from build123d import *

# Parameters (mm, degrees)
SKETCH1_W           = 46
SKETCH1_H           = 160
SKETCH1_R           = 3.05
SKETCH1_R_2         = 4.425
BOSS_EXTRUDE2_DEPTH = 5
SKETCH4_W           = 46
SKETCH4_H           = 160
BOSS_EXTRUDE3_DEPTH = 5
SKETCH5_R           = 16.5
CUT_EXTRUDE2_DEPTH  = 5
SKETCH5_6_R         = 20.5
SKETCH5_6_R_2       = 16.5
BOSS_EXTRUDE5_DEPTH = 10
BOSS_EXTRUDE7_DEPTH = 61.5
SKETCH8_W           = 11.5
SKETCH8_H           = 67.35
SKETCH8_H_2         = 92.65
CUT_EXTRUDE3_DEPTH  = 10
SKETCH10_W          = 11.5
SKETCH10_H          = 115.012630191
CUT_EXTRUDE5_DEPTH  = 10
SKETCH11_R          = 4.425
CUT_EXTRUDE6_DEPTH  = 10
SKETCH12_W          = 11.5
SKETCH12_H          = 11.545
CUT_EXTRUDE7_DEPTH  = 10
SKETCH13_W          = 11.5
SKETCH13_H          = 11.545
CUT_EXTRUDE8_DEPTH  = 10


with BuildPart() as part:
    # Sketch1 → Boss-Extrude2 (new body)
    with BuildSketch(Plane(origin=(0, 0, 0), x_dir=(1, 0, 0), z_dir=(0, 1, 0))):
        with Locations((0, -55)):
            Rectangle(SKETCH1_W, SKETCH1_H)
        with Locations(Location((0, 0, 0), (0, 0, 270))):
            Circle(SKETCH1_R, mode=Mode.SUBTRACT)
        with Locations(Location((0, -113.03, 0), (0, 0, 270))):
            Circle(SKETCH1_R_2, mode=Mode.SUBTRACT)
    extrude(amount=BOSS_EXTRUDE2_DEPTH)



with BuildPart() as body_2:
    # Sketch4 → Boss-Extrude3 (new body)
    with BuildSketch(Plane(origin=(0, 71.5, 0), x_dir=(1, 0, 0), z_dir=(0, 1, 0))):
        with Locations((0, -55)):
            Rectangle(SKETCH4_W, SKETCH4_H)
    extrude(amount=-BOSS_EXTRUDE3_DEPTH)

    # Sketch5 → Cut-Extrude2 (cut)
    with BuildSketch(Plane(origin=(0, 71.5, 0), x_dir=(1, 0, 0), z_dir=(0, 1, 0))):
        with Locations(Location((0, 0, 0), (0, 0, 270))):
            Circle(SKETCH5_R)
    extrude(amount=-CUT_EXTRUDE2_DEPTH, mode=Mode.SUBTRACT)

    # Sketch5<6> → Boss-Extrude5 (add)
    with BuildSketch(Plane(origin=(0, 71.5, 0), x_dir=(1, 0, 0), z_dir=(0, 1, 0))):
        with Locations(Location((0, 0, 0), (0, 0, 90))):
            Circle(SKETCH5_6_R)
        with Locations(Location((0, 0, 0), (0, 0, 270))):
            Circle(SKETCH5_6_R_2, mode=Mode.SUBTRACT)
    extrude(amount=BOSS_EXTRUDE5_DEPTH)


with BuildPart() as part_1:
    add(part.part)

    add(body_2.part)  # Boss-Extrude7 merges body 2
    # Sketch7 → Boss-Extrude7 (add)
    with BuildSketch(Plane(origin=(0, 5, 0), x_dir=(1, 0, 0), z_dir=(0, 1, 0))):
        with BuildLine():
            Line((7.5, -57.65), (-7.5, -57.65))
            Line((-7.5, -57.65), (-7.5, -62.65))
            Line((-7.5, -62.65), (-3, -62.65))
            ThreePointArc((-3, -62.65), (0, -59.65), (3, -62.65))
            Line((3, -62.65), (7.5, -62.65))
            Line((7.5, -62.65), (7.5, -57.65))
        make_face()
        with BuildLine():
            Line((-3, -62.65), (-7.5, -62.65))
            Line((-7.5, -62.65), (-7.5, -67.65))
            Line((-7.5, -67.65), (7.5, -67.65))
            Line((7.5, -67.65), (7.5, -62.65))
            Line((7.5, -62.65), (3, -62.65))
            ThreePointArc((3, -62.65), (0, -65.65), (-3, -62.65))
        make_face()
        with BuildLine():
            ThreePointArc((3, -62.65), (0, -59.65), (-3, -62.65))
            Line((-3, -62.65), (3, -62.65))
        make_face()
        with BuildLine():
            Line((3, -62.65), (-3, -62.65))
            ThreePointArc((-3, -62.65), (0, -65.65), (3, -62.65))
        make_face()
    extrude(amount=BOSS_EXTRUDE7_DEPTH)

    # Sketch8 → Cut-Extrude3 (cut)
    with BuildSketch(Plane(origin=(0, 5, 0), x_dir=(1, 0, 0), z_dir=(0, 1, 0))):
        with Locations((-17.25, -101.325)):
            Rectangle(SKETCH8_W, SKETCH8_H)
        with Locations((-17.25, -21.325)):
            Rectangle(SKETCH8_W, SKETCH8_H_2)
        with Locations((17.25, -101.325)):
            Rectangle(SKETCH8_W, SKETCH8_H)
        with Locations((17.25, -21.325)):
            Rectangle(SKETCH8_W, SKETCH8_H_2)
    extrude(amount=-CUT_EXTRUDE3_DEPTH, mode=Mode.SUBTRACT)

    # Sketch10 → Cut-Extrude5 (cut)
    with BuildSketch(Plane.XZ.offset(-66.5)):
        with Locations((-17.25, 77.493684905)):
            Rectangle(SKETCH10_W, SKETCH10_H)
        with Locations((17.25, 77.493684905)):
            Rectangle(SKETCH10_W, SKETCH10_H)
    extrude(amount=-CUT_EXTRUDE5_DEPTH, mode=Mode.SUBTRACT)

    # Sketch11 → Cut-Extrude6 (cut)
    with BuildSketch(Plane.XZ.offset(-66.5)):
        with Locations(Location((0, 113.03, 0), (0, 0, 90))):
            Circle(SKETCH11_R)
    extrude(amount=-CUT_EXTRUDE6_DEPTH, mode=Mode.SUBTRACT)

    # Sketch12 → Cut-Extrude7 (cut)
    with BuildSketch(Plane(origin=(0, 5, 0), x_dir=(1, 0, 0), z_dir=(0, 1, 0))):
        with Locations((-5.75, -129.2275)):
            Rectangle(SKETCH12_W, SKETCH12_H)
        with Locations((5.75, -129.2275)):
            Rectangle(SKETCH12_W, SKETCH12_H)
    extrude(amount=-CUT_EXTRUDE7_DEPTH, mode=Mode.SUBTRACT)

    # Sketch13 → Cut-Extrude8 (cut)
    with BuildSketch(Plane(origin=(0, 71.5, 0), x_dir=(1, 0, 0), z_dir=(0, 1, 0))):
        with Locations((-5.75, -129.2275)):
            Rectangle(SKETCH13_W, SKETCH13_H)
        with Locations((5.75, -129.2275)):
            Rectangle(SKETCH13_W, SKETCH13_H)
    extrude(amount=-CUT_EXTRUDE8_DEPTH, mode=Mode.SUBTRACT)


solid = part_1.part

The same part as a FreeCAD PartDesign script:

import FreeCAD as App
import Part
import Sketcher
from FreeCAD import Vector

doc = App.newDocument("Part")
body = doc.addObject("PartDesign::Body", "Body")

sketch1 = doc.addObject("Sketcher::SketchObject", "Sketch")
body.addObject(sketch1)
sketch1.AttachmentSupport = (doc.XZ_Plane, [""])
sketch1.MapMode = "FlatFace"
sketch1.addGeometry(Part.LineSegment(Vector(-23, -25, 0), Vector(-23, 135, 0)), False)
sketch1.addGeometry(Part.LineSegment(Vector(-23, 135, 0), Vector(23, 135, 0)), False)
sketch1.addGeometry(Part.LineSegment(Vector(23, 135, 0), Vector(23, -25, 0)), False)
sketch1.addGeometry(Part.LineSegment(Vector(23, -25, 0), Vector(-23, -25, 0)), False)
sketch1.addGeometry(Part.Circle(Vector(0, 113.03, 0), Vector(0, 0, 1), 4.425), False)
sketch1.addGeometry(Part.Circle(Vector(0, 0, 0), Vector(0, 0, 1), 3.05), False)
sketch1.addConstraint(Sketcher.Constraint("Coincident", 0, 2, 1, 1))
sketch1.addConstraint(Sketcher.Constraint("Coincident", 1, 2, 2, 1))
sketch1.addConstraint(Sketcher.Constraint("Coincident", 2, 2, 3, 1))
sketch1.addConstraint(Sketcher.Constraint("Coincident", 3, 2, 0, 1))
sketch1.addConstraint(Sketcher.Constraint("Vertical", 0))
sketch1.addConstraint(Sketcher.Constraint("Horizontal", 1))
sketch1.addConstraint(Sketcher.Constraint("Vertical", 2))
sketch1.addConstraint(Sketcher.Constraint("Horizontal", 3))
sketch1.addConstraint(Sketcher.Constraint("Coincident", 5, 3, -1, 1))
sketch1.addConstraint(Sketcher.Constraint("PointOnObject", 4, 3, -2))
sketch1.addConstraint(Sketcher.Constraint("Diameter", 5, 6.1))
sketch1.addConstraint(Sketcher.Constraint("Diameter", 4, 8.85))
sketch1.addConstraint(Sketcher.Constraint("DistanceX", 1, 1, 1, 2, 46.0))
sketch1.addConstraint(Sketcher.Constraint("DistanceY", 0, 1, 0, 2, 160.0))
sketch1.addConstraint(Sketcher.Constraint("DistanceX", 0, 2, -1, 1, 23.0))
sketch1.addConstraint(Sketcher.Constraint("DistanceY", -1, 1, 0, 2, 135.0))
sketch1.addConstraint(Sketcher.Constraint("DistanceY", -1, 1, 4, 3, 113.03))
pad1 = doc.addObject("PartDesign::Pad", "Pad")
body.addObject(pad1)
pad1.Profile = sketch1
pad1.Length = 5
pad1.Reversed = True
body2 = doc.addObject("PartDesign::Body", "Body001")

sketch2 = doc.addObject("Sketcher::SketchObject", "Sketch001")
body2.addObject(sketch2)
sketch2.AttachmentSupport = (doc.getObject("XZ_Plane001"), [""])
sketch2.MapMode = "FlatFace"
sketch2.AttachmentOffset = App.Placement(Vector(0, 0, -71.5), App.Rotation())
sketch2.addGeometry(Part.LineSegment(Vector(-23, -25, 0), Vector(-23, 135, 0)), False)
sketch2.addGeometry(Part.LineSegment(Vector(-23, 135, 0), Vector(23, 135, 0)), False)
sketch2.addGeometry(Part.LineSegment(Vector(23, 135, 0), Vector(23, -25, 0)), False)
sketch2.addGeometry(Part.LineSegment(Vector(23, -25, 0), Vector(-23, -25, 0)), False)
sketch2.addConstraint(Sketcher.Constraint("Coincident", 0, 2, 1, 1))
sketch2.addConstraint(Sketcher.Constraint("Coincident", 1, 2, 2, 1))
sketch2.addConstraint(Sketcher.Constraint("Coincident", 2, 2, 3, 1))
sketch2.addConstraint(Sketcher.Constraint("Coincident", 3, 2, 0, 1))
sketch2.addConstraint(Sketcher.Constraint("Vertical", 0))
sketch2.addConstraint(Sketcher.Constraint("Horizontal", 1))
sketch2.addConstraint(Sketcher.Constraint("Vertical", 2))
sketch2.addConstraint(Sketcher.Constraint("Horizontal", 3))
sketch2.addConstraint(Sketcher.Constraint("DistanceX", 1, 1, 1, 2, 46.0))
sketch2.addConstraint(Sketcher.Constraint("DistanceY", 0, 1, 0, 2, 160.0))
sketch2.addConstraint(Sketcher.Constraint("DistanceX", 0, 2, -1, 1, 23.0))
sketch2.addConstraint(Sketcher.Constraint("DistanceY", -1, 1, 0, 2, 135.0))
pad2 = doc.addObject("PartDesign::Pad", "Pad001")
body2.addObject(pad2)
pad2.Profile = sketch2
pad2.Length = 5

sketch3 = doc.addObject("Sketcher::SketchObject", "Sketch002")
body2.addObject(sketch3)
sketch3.AttachmentSupport = (doc.getObject("XZ_Plane001"), [""])
sketch3.MapMode = "FlatFace"
sketch3.AttachmentOffset = App.Placement(Vector(0, 0, -71.5), App.Rotation())
sketch3.addGeometry(Part.Circle(Vector(0, 0, 0), Vector(0, 0, 1), 16.5), False)
sketch3.addConstraint(Sketcher.Constraint("Coincident", 0, 3, -1, 1))
sketch3.addConstraint(Sketcher.Constraint("Diameter", 0, 33.0))
pocket1 = doc.addObject("PartDesign::Pocket", "Pocket")
body2.addObject(pocket1)
pocket1.Profile = sketch3
pocket1.Length = 5
pocket1.Reversed = True

sketch4 = doc.addObject("Sketcher::SketchObject", "Sketch003")
body2.addObject(sketch4)
sketch4.AttachmentSupport = (doc.getObject("XZ_Plane001"), [""])
sketch4.MapMode = "FlatFace"
sketch4.AttachmentOffset = App.Placement(Vector(0, 0, -71.5), App.Rotation())
sketch4.addGeometry(Part.Circle(Vector(0, 0, 0), Vector(0, 0, 1), 20.5), False)
sketch4.addGeometry(Part.Circle(Vector(0, 0, 0), Vector(0, 0, 1), 16.5), False)
sketch4.addConstraint(Sketcher.Constraint("Coincident", 0, 3, -1, 1))
sketch4.addConstraint(Sketcher.Constraint("Coincident", 1, 3, -1, 1))
sketch4.addConstraint(Sketcher.Constraint("Diameter", 0, 41.0))
sketch4.addConstraint(Sketcher.Constraint("Diameter", 1, 33.0))
pad3 = doc.addObject("PartDesign::Pad", "Pad002")
body2.addObject(pad3)
pad3.Profile = sketch4
pad3.Length = 10
pad3.Reversed = True
body.AllowCompound = True
doc.recompute()

boolean = doc.addObject("PartDesign::Boolean", "Boolean")
body.addObject(boolean)
boolean.Type = "Fuse"
boolean.addObjects([body2])

sketch5 = doc.addObject("Sketcher::SketchObject", "Sketch004")
body.addObject(sketch5)
sketch5.AttachmentSupport = (doc.XZ_Plane, [""])
sketch5.MapMode = "FlatFace"
sketch5.AttachmentOffset = App.Placement(Vector(0, 0, -5), App.Rotation())
sketch5.addGeometry(Part.LineSegment(Vector(7.5, 57.65, 0), Vector(-7.5, 57.65, 0)), False)
sketch5.addGeometry(Part.LineSegment(Vector(-7.5, 57.65, 0), Vector(-7.5, 67.65, 0)), False)
sketch5.addGeometry(Part.LineSegment(Vector(-7.5, 67.65, 0), Vector(7.5, 67.65, 0)), False)
sketch5.addGeometry(Part.LineSegment(Vector(7.5, 67.65, 0), Vector(7.5, 57.65, 0)), False)
sketch5.addConstraint(Sketcher.Constraint("Coincident", 0, 2, 1, 1))
sketch5.addConstraint(Sketcher.Constraint("Coincident", 1, 2, 2, 1))
sketch5.addConstraint(Sketcher.Constraint("Coincident", 2, 2, 3, 1))
sketch5.addConstraint(Sketcher.Constraint("Coincident", 3, 2, 0, 1))
sketch5.addConstraint(Sketcher.Constraint("Horizontal", 0))
sketch5.addConstraint(Sketcher.Constraint("Vertical", 1))
sketch5.addConstraint(Sketcher.Constraint("Horizontal", 2))
sketch5.addConstraint(Sketcher.Constraint("Vertical", 3))
sketch5.addConstraint(Sketcher.Constraint("DistanceX", 0, 2, 0, 1, 15.0))
sketch5.addConstraint(Sketcher.Constraint("DistanceY", 1, 1, 1, 2, 10.0))
sketch5.addConstraint(Sketcher.Constraint("DistanceX", 0, 2, -1, 1, 7.5))
sketch5.addConstraint(Sketcher.Constraint("DistanceY", -1, 1, 0, 2, 57.65))
pad4 = doc.addObject("PartDesign::Pad", "Pad003")
body.addObject(pad4)
pad4.Profile = sketch5
pad4.Length = 61.5
pad4.Reversed = True

sketch6 = doc.addObject("Sketcher::SketchObject", "Sketch005")
body.addObject(sketch6)
sketch6.AttachmentSupport = (doc.XZ_Plane, [""])
sketch6.MapMode = "FlatFace"
sketch6.AttachmentOffset = App.Placement(Vector(0, 0, -5), App.Rotation())
sketch6.addGeometry(Part.LineSegment(Vector(-23, 135, 0), Vector(-11.5, 135, 0)), False)
sketch6.addGeometry(Part.LineSegment(Vector(-11.5, 135, 0), Vector(-11.5, -25, 0)), False)
sketch6.addGeometry(Part.LineSegment(Vector(-11.5, -25, 0), Vector(-23, -25, 0)), False)
sketch6.addGeometry(Part.LineSegment(Vector(-23, -25, 0), Vector(-23, 135, 0)), False)
sketch6.addGeometry(Part.LineSegment(Vector(11.5, 135, 0), Vector(23, 135, 0)), False)
sketch6.addGeometry(Part.LineSegment(Vector(23, 135, 0), Vector(23, -25, 0)), False)
sketch6.addGeometry(Part.LineSegment(Vector(23, -25, 0), Vector(11.5, -25, 0)), False)
sketch6.addGeometry(Part.LineSegment(Vector(11.5, -25, 0), Vector(11.5, 135, 0)), False)
sketch6.addConstraint(Sketcher.Constraint("Coincident", 0, 2, 1, 1))
sketch6.addConstraint(Sketcher.Constraint("Coincident", 1, 2, 2, 1))
sketch6.addConstraint(Sketcher.Constraint("Coincident", 2, 2, 3, 1))
sketch6.addConstraint(Sketcher.Constraint("Coincident", 3, 2, 0, 1))
sketch6.addConstraint(Sketcher.Constraint("Coincident", 4, 2, 5, 1))
sketch6.addConstraint(Sketcher.Constraint("Coincident", 5, 2, 6, 1))
sketch6.addConstraint(Sketcher.Constraint("Coincident", 6, 2, 7, 1))
sketch6.addConstraint(Sketcher.Constraint("Coincident", 7, 2, 4, 1))
sketch6.addConstraint(Sketcher.Constraint("Horizontal", 0))
sketch6.addConstraint(Sketcher.Constraint("Vertical", 1))
sketch6.addConstraint(Sketcher.Constraint("Horizontal", 2))
sketch6.addConstraint(Sketcher.Constraint("Vertical", 3))
sketch6.addConstraint(Sketcher.Constraint("Horizontal", 4))
sketch6.addConstraint(Sketcher.Constraint("Vertical", 5))
sketch6.addConstraint(Sketcher.Constraint("Horizontal", 6))
sketch6.addConstraint(Sketcher.Constraint("Vertical", 7))
sketch6.addConstraint(Sketcher.Constraint("Symmetric", 3, 2, 4, 2, -2))
sketch6.addConstraint(Sketcher.Constraint("Symmetric", 1, 2, 6, 2, -2))
sketch6.addConstraint(Sketcher.Constraint("DistanceY", 1, 2, 1, 1, 160.0))
sketch6.addConstraint(Sketcher.Constraint("DistanceX", 0, 1, 0, 2, 11.5))
sketch6.addConstraint(Sketcher.Constraint("DistanceY", -1, 1, 0, 2, 135.0))
sketch6.addConstraint(Sketcher.Constraint("DistanceX", 2, 2, -1, 1, 23.0))
pocket2 = doc.addObject("PartDesign::Pocket", "Pocket001")
body.addObject(pocket2)
pocket2.Profile = sketch6
pocket2.Length = 10
pocket2.Reversed = True

sketch7 = doc.addObject("Sketcher::SketchObject", "Sketch006")
body.addObject(sketch7)
sketch7.AttachmentSupport = (doc.XZ_Plane, [""])
sketch7.MapMode = "FlatFace"
sketch7.AttachmentOffset = App.Placement(Vector(0, 0, -66.5), App.Rotation())
sketch7.addGeometry(Part.LineSegment(Vector(-23, 135, 0), Vector(-23, 19.98737, 0)), False)
sketch7.addGeometry(Part.LineSegment(Vector(-23, 19.98737, 0), Vector(-11.5, 19.98737, 0)), False)
sketch7.addGeometry(Part.LineSegment(Vector(-11.5, 19.98737, 0), Vector(-11.5, 135, 0)), False)
sketch7.addGeometry(Part.LineSegment(Vector(-11.5, 135, 0), Vector(-23, 135, 0)), False)
sketch7.addGeometry(Part.LineSegment(Vector(11.5, 135, 0), Vector(11.5, 19.98737, 0)), False)
sketch7.addGeometry(Part.LineSegment(Vector(11.5, 19.98737, 0), Vector(23, 19.98737, 0)), False)
sketch7.addGeometry(Part.LineSegment(Vector(23, 19.98737, 0), Vector(23, 135, 0)), False)
sketch7.addGeometry(Part.LineSegment(Vector(23, 135, 0), Vector(11.5, 135, 0)), False)
sketch7.addConstraint(Sketcher.Constraint("Coincident", 0, 2, 1, 1))
sketch7.addConstraint(Sketcher.Constraint("Coincident", 1, 2, 2, 1))
sketch7.addConstraint(Sketcher.Constraint("Coincident", 2, 2, 3, 1))
sketch7.addConstraint(Sketcher.Constraint("Coincident", 3, 2, 0, 1))
sketch7.addConstraint(Sketcher.Constraint("Coincident", 4, 2, 5, 1))
sketch7.addConstraint(Sketcher.Constraint("Coincident", 5, 2, 6, 1))
sketch7.addConstraint(Sketcher.Constraint("Coincident", 6, 2, 7, 1))
sketch7.addConstraint(Sketcher.Constraint("Coincident", 7, 2, 4, 1))
sketch7.addConstraint(Sketcher.Constraint("Vertical", 0))
sketch7.addConstraint(Sketcher.Constraint("Horizontal", 1))
sketch7.addConstraint(Sketcher.Constraint("Vertical", 2))
sketch7.addConstraint(Sketcher.Constraint("Horizontal", 3))
sketch7.addConstraint(Sketcher.Constraint("Vertical", 4))
sketch7.addConstraint(Sketcher.Constraint("Horizontal", 5))
sketch7.addConstraint(Sketcher.Constraint("Vertical", 6))
sketch7.addConstraint(Sketcher.Constraint("Horizontal", 7))
sketch7.addConstraint(Sketcher.Constraint("Symmetric", 1, 2, 4, 2, -2))
sketch7.addConstraint(Sketcher.Constraint("Symmetric", 3, 2, 6, 2, -2))
sketch7.addConstraint(Sketcher.Constraint("DistanceX", 1, 1, 1, 2, 11.5))
sketch7.addConstraint(Sketcher.Constraint("DistanceX", 0, 2, -1, 1, 23.0))
sketch7.addConstraint(Sketcher.Constraint("DistanceY", -1, 1, 2, 2, 135.0))
sketch7.addConstraint(Sketcher.Constraint("DistanceY", 0, 2, 0, 1, 115.01263))
pocket3 = doc.addObject("PartDesign::Pocket", "Pocket002")
body.addObject(pocket3)
pocket3.Profile = sketch7
pocket3.Length = 10

sketch8 = doc.addObject("Sketcher::SketchObject", "Sketch007")
body.addObject(sketch8)
sketch8.AttachmentSupport = (doc.XZ_Plane, [""])
sketch8.MapMode = "FlatFace"
sketch8.AttachmentOffset = App.Placement(Vector(0, 0, -66.5), App.Rotation())
sketch8.addGeometry(Part.Circle(Vector(0, 113.03, 0), Vector(0, 0, 1), 4.425), False)
sketch8.addConstraint(Sketcher.Constraint("PointOnObject", 0, 3, -2))
sketch8.addConstraint(Sketcher.Constraint("Diameter", 0, 8.85))
sketch8.addConstraint(Sketcher.Constraint("DistanceY", -1, 1, 0, 3, 113.03))
pocket4 = doc.addObject("PartDesign::Pocket", "Pocket003")
body.addObject(pocket4)
pocket4.Profile = sketch8
pocket4.Length = 10

sketch9 = doc.addObject("Sketcher::SketchObject", "Sketch008")
body.addObject(sketch9)
sketch9.AttachmentSupport = (doc.XZ_Plane, [""])
sketch9.MapMode = "FlatFace"
sketch9.AttachmentOffset = App.Placement(Vector(0, 0, -5), App.Rotation())
sketch9.addGeometry(Part.LineSegment(Vector(-11.5, 123.455, 0), Vector(-11.5, 135, 0)), False)
sketch9.addGeometry(Part.LineSegment(Vector(-11.5, 135, 0), Vector(11.5, 135, 0)), False)
sketch9.addGeometry(Part.LineSegment(Vector(11.5, 135, 0), Vector(11.5, 123.455, 0)), False)
sketch9.addGeometry(Part.LineSegment(Vector(11.5, 123.455, 0), Vector(-11.5, 123.455, 0)), False)
sketch9.addConstraint(Sketcher.Constraint("Coincident", 0, 2, 1, 1))
sketch9.addConstraint(Sketcher.Constraint("Coincident", 1, 2, 2, 1))
sketch9.addConstraint(Sketcher.Constraint("Coincident", 2, 2, 3, 1))
sketch9.addConstraint(Sketcher.Constraint("Coincident", 3, 2, 0, 1))
sketch9.addConstraint(Sketcher.Constraint("Vertical", 0))
sketch9.addConstraint(Sketcher.Constraint("Horizontal", 1))
sketch9.addConstraint(Sketcher.Constraint("Vertical", 2))
sketch9.addConstraint(Sketcher.Constraint("Horizontal", 3))
sketch9.addConstraint(Sketcher.Constraint("DistanceX", 1, 1, 1, 2, 23.0))
sketch9.addConstraint(Sketcher.Constraint("DistanceY", -1, 1, 0, 2, 135.0))
sketch9.addConstraint(Sketcher.Constraint("DistanceX", 0, 2, -1, 1, 11.5))
sketch9.addConstraint(Sketcher.Constraint("DistanceY", 0, 1, 0, 2, 11.545))
pocket5 = doc.addObject("PartDesign::Pocket", "Pocket004")
body.addObject(pocket5)
pocket5.Profile = sketch9
pocket5.Length = 10
pocket5.Reversed = True

sketch10 = doc.addObject("Sketcher::SketchObject", "Sketch009")
body.addObject(sketch10)
sketch10.AttachmentSupport = (doc.XZ_Plane, [""])
sketch10.MapMode = "FlatFace"
sketch10.AttachmentOffset = App.Placement(Vector(0, 0, -71.5), App.Rotation())
sketch10.addGeometry(Part.LineSegment(Vector(-11.5, 123.455, 0), Vector(-11.5, 135, 0)), False)
sketch10.addGeometry(Part.LineSegment(Vector(-11.5, 135, 0), Vector(11.5, 135, 0)), False)
sketch10.addGeometry(Part.LineSegment(Vector(11.5, 135, 0), Vector(11.5, 123.455, 0)), False)
sketch10.addGeometry(Part.LineSegment(Vector(11.5, 123.455, 0), Vector(-11.5, 123.455, 0)), False)
sketch10.addConstraint(Sketcher.Constraint("Coincident", 0, 2, 1, 1))
sketch10.addConstraint(Sketcher.Constraint("Coincident", 1, 2, 2, 1))
sketch10.addConstraint(Sketcher.Constraint("Coincident", 2, 2, 3, 1))
sketch10.addConstraint(Sketcher.Constraint("Coincident", 3, 2, 0, 1))
sketch10.addConstraint(Sketcher.Constraint("Vertical", 0))
sketch10.addConstraint(Sketcher.Constraint("Horizontal", 1))
sketch10.addConstraint(Sketcher.Constraint("Vertical", 2))
sketch10.addConstraint(Sketcher.Constraint("Horizontal", 3))
sketch10.addConstraint(Sketcher.Constraint("DistanceX", 1, 1, 1, 2, 23.0))
sketch10.addConstraint(Sketcher.Constraint("DistanceY", -1, 1, 0, 2, 135.0))
sketch10.addConstraint(Sketcher.Constraint("DistanceX", 0, 2, -1, 1, 11.5))
sketch10.addConstraint(Sketcher.Constraint("DistanceY", 0, 1, 0, 2, 11.545))
pocket6 = doc.addObject("PartDesign::Pocket", "Pocket005")
body.addObject(pocket6)
pocket6.Profile = sketch10
pocket6.Length = 10
pocket6.Reversed = True

doc.recompute()
